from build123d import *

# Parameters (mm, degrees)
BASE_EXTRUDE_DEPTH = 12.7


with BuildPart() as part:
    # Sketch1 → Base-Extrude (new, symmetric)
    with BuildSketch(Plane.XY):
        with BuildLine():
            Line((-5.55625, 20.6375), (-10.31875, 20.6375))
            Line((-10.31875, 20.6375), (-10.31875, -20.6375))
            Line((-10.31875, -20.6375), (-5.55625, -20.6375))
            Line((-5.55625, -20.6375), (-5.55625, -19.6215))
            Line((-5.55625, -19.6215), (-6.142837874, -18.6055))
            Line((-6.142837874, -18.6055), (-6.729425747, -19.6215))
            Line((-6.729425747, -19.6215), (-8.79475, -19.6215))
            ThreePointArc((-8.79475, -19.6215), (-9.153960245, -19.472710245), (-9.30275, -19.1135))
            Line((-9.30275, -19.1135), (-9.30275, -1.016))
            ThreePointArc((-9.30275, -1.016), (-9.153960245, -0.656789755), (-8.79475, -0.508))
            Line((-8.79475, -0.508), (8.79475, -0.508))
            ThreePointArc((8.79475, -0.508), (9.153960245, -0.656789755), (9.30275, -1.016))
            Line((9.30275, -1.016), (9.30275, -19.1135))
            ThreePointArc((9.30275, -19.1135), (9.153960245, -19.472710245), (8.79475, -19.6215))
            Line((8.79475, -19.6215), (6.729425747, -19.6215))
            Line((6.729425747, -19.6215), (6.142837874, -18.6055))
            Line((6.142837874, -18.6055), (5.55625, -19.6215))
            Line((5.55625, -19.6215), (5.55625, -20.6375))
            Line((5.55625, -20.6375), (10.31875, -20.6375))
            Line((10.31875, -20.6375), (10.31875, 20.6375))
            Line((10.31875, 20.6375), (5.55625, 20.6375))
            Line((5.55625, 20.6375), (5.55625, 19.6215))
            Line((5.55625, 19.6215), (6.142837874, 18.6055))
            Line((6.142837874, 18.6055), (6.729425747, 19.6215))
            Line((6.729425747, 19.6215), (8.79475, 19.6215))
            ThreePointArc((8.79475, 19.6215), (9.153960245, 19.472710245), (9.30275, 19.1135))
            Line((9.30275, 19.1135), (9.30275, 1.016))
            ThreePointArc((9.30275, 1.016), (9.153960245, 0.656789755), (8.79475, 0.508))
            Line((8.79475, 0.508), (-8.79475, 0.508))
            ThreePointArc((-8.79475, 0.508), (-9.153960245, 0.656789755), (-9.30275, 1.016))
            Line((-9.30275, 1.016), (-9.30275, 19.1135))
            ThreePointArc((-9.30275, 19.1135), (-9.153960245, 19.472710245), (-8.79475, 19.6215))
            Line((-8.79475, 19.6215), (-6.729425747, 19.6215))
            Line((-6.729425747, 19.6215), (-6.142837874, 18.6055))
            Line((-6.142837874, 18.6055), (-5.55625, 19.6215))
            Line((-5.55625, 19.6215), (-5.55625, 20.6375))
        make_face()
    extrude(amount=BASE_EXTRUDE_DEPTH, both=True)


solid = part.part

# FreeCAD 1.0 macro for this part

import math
import FreeCAD as App
import Part
import Sketcher

V = App.Vector
Q = App.Units.Quantity

doc = App.newDocument("Part")
body = doc.addObject("PartDesign::Body", "Body")

sketch1 = body.newObject("Sketcher::SketchObject", "Sketch")
sketch1.AttachmentSupport = (doc.getObject("XY_Plane"), [""])
sketch1.MapMode = "FlatFace"
sketch1.addGeometry([
    Part.LineSegment(V(-5.55625, 20.6375, 0), V(-10.31875, 20.6375, 0)),
    Part.LineSegment(V(-10.31875, 20.6375, 0), V(-10.31875, -20.6375, 0)),
    Part.LineSegment(V(-10.31875, -20.6375, 0), V(-5.55625, -20.6375, 0)),
    Part.LineSegment(V(-5.55625, -20.6375, 0), V(-5.55625, -19.6215, 0)),
    Part.LineSegment(V(-5.55625, -19.6215, 0), V(-6.142838, -18.6055, 0)),
    Part.LineSegment(V(-6.142838, -18.6055, 0), V(-6.729426, -19.6215, 0)),
    Part.LineSegment(V(-6.729426, -19.6215, 0), V(-8.79475, -19.6215, 0)),
    Part.ArcOfCircle(Part.Circle(V(-8.79475, -19.1135, 0), V(0, 0, 1), 0.508), math.radians(180), math.radians(270)),
    Part.LineSegment(V(-9.30275, -19.1135, 0), V(-9.30275, -1.016, 0)),
    Part.ArcOfCircle(Part.Circle(V(-8.79475, -1.016, 0), V(0, 0, 1), 0.508), math.radians(90), math.radians(180)),
    Part.LineSegment(V(-8.79475, -0.508, 0), V(8.79475, -0.508, 0)),
    Part.ArcOfCircle(Part.Circle(V(8.79475, -1.016, 0), V(0, 0, 1), 0.508), math.radians(0), math.radians(90)),
    Part.LineSegment(V(9.30275, -1.016, 0), V(9.30275, -19.1135, 0)),
    Part.ArcOfCircle(Part.Circle(V(8.79475, -19.1135, 0), V(0, 0, 1), 0.508), math.radians(-90), math.radians(0)),
    Part.LineSegment(V(8.79475, -19.6215, 0), V(6.729426, -19.6215, 0)),
    Part.LineSegment(V(6.729426, -19.6215, 0), V(6.142838, -18.6055, 0)),
    Part.LineSegment(V(6.142838, -18.6055, 0), V(5.55625, -19.6215, 0)),
    Part.LineSegment(V(5.55625, -19.6215, 0), V(5.55625, -20.6375, 0)),
    Part.LineSegment(V(5.55625, -20.6375, 0), V(10.31875, -20.6375, 0)),
    Part.LineSegment(V(10.31875, -20.6375, 0), V(10.31875, 20.6375, 0)),
    Part.LineSegment(V(10.31875, 20.6375, 0), V(5.55625, 20.6375, 0)),
    Part.LineSegment(V(5.55625, 20.6375, 0), V(5.55625, 19.6215, 0)),
    Part.LineSegment(V(5.55625, 19.6215, 0), V(6.142838, 18.6055, 0)),
    Part.LineSegment(V(6.142838, 18.6055, 0), V(6.729426, 19.6215, 0)),
    Part.LineSegment(V(6.729426, 19.6215, 0), V(8.79475, 19.6215, 0)),
    Part.ArcOfCircle(Part.Circle(V(8.79475, 19.1135, 0), V(0, 0, 1), 0.508), math.radians(0), math.radians(90)),
    Part.LineSegment(V(9.30275, 19.1135, 0), V(9.30275, 1.016, 0)),
    Part.ArcOfCircle(Part.Circle(V(8.79475, 1.016, 0), V(0, 0, 1), 0.508), math.radians(-90), math.radians(0)),
    Part.LineSegment(V(8.79475, 0.508, 0), V(-8.79475, 0.508, 0)),
    Part.ArcOfCircle(Part.Circle(V(-8.79475, 1.016, 0), V(0, 0, 1), 0.508), math.radians(180), math.radians(270)),
    Part.LineSegment(V(-9.30275, 1.016, 0), V(-9.30275, 19.1135, 0)),
    Part.ArcOfCircle(Part.Circle(V(-8.79475, 19.1135, 0), V(0, 0, 1), 0.508), math.radians(90), math.radians(180)),
    Part.LineSegment(V(-8.79475, 19.6215, 0), V(-6.729426, 19.6215, 0)),
    Part.LineSegment(V(-6.729426, 19.6215, 0), V(-6.142838, 18.6055, 0)),
    Part.LineSegment(V(-6.142838, 18.6055, 0), V(-5.55625, 19.6215, 0)),
    Part.LineSegment(V(-5.55625, 19.6215, 0), V(-5.55625, 20.6375, 0)),
], False)
sketch1.addConstraint([
    Sketcher.Constraint("Coincident", 0, 2, 1, 1),
    Sketcher.Constraint("Coincident", 1, 2, 2, 1),
    Sketcher.Constraint("Coincident", 2, 2, 3, 1),
    Sketcher.Constraint("Coincident", 3, 2, 4, 1),
    Sketcher.Constraint("Coincident", 4, 2, 5, 1),
    Sketcher.Constraint("Coincident", 5, 2, 6, 1),
    Sketcher.Constraint("Tangent", 6, 2, 7, 2),
    Sketcher.Constraint("Tangent", 7, 1, 8, 1),
    Sketcher.Constraint("Tangent", 8, 2, 9, 2),
    Sketcher.Constraint("Tangent", 9, 1, 10, 1),
    Sketcher.Constraint("Tangent", 10, 2, 11, 2),
    Sketcher.Constraint("Tangent", 11, 1, 12, 1),
    Sketcher.Constraint("Tangent", 12, 2, 13, 2),
    Sketcher.Constraint("Tangent", 13, 1, 14, 1),
    Sketcher.Constraint("Coincident", 14, 2, 15, 1),
    Sketcher.Constraint("Coincident", 15, 2, 16, 1),
    Sketcher.Constraint("Coincident", 16, 2, 17, 1),
    Sketcher.Constraint("Coincident", 17, 2, 18, 1),
    Sketcher.Constraint("Coincident", 18, 2, 19, 1),
    Sketcher.Constraint("Coincident", 19, 2, 20, 1),
    Sketcher.Constraint("Coincident", 20, 2, 21, 1),
    Sketcher.Constraint("Coincident", 21, 2, 22, 1),
    Sketcher.Constraint("Coincident", 22, 2, 23, 1),
    Sketcher.Constraint("Coincident", 23, 2, 24, 1),
    Sketcher.Constraint("Tangent", 24, 2, 25, 2),
    Sketcher.Constraint("Tangent", 25, 1, 26, 1),
    Sketcher.Constraint("Tangent", 26, 2, 27, 2),
    Sketcher.Constraint("Tangent", 27, 1, 28, 1),
    Sketcher.Constraint("Tangent", 28, 2, 29, 2),
    Sketcher.Constraint("Tangent", 29, 1, 30, 1),
    Sketcher.Constraint("Tangent", 30, 2, 31, 2),
    Sketcher.Constraint("Tangent", 31, 1, 32, 1),
    Sketcher.Constraint("Coincident", 32, 2, 33, 1),
    Sketcher.Constraint("Coincident", 33, 2, 34, 1),
    Sketcher.Constraint("Coincident", 34, 2, 35, 1),
    Sketcher.Constraint("Coincident", 35, 2, 0, 1),
    Sketcher.Constraint("Horizontal", 0),
    Sketcher.Constraint("Vertical", 1),
    Sketcher.Constraint("Horizontal", 2),
    Sketcher.Constraint("Vertical", 3),
    Sketcher.Constraint("Horizontal", 6),
    Sketcher.Constraint("Vertical", 8),
    Sketcher.Constraint("Horizontal", 10),
    Sketcher.Constraint("Vertical", 12),
    Sketcher.Constraint("Horizontal", 14),
    Sketcher.Constraint("Vertical", 17),
    Sketcher.Constraint("Horizontal", 18),
    Sketcher.Constraint("Vertical", 19),
    Sketcher.Constraint("Horizontal", 20),
    Sketcher.Constraint("Vertical", 21),
    Sketcher.Constraint("Horizontal", 24),
    Sketcher.Constraint("Vertical", 26),
    Sketcher.Constraint("Horizontal", 28),
    Sketcher.Constraint("Vertical", 30),
    Sketcher.Constraint("Horizontal", 32),
    Sketcher.Constraint("Vertical", 35),
    Sketcher.Constraint("Equal", 7, 9),
    Sketcher.Constraint("Equal", 9, 11),
    Sketcher.Constraint("Equal", 11, 13),
    Sketcher.Constraint("Equal", 13, 25),
    Sketcher.Constraint("Equal", 25, 27),
    Sketcher.Constraint("Equal", 27, 29),
    Sketcher.Constraint("Equal", 29, 31),
    Sketcher.Constraint("Symmetric", 7, 3, 25, 3, -1, 1),
    Sketcher.Constraint("Symmetric", 11, 3, 29, 3, -1, 1),
    Sketcher.Constraint("Symmetric", 0, 2, 18, 2, -1, 1),
    Sketcher.Constraint("Symmetric", 2, 2, 20, 2, -1, 1),
    Sketcher.Constraint("Symmetric", 4, 2, 22, 2, -1, 1),
    Sketcher.Constraint("Symmetric", 14, 2, 32, 2, -1, 1),
    Sketcher.Constraint("Symmetric", 15, 2, 33, 2, -1, 1),
    Sketcher.Constraint("Symmetric", 16, 2, 34, 2, -1, 1),
    Sketcher.Constraint("Symmetric", 7, 3, 13, 3, -2),
    Sketcher.Constraint("Symmetric", 4, 2, 15, 2, -2),
    Sketcher.Constraint("Symmetric", 3, 2, 16, 2, -2),
    Sketcher.Constraint("Parallel", 4, 15),
    Sketcher.Constraint("Parallel", 5, 16),
    Sketcher.Constraint("Parallel", 15, 22),
    Sketcher.Constraint("Parallel", 16, 23),
    Sketcher.Constraint("Horizontal", 3, 2, 5, 2),
    Sketcher.Constraint("Horizontal", 2, 2, 17, 2),
    Sketcher.Constraint("Radius", 7, Q("0.02 in")),
    Sketcher.Constraint("Angle", 4, Q("120 deg")),
    Sketcher.Constraint("DistanceY", 3, 1, 3, 2, Q("0.04 in")),
    Sketcher.Constraint("DistanceX", 0, 2, 0, 1, Q("0.1875 in")),
    Sketcher.Constraint("DistanceY", 1, 2, 1, 1, Q("1.625 in")),
    Sketcher.Constraint("DistanceY", 9, 3, -1, 1, Q("0.04 in")),
    Sketcher.Constraint("DistanceX", 0, 2, 31, 3, Q("0.06 in")),
    Sketcher.Constraint("DistanceY", 3, 2, 4, 2, Q("0.04 in")),
    Sketcher.Constraint("DistanceX", 10, 1, 10, 2, Q("0.6925 in")),
])
pad1 = body.newObject("PartDesign::Pad", "Pad")
pad1.Profile = sketch1
pad1.Length = Q("1 in")
pad1.Midplane = True

doc.recompute()
